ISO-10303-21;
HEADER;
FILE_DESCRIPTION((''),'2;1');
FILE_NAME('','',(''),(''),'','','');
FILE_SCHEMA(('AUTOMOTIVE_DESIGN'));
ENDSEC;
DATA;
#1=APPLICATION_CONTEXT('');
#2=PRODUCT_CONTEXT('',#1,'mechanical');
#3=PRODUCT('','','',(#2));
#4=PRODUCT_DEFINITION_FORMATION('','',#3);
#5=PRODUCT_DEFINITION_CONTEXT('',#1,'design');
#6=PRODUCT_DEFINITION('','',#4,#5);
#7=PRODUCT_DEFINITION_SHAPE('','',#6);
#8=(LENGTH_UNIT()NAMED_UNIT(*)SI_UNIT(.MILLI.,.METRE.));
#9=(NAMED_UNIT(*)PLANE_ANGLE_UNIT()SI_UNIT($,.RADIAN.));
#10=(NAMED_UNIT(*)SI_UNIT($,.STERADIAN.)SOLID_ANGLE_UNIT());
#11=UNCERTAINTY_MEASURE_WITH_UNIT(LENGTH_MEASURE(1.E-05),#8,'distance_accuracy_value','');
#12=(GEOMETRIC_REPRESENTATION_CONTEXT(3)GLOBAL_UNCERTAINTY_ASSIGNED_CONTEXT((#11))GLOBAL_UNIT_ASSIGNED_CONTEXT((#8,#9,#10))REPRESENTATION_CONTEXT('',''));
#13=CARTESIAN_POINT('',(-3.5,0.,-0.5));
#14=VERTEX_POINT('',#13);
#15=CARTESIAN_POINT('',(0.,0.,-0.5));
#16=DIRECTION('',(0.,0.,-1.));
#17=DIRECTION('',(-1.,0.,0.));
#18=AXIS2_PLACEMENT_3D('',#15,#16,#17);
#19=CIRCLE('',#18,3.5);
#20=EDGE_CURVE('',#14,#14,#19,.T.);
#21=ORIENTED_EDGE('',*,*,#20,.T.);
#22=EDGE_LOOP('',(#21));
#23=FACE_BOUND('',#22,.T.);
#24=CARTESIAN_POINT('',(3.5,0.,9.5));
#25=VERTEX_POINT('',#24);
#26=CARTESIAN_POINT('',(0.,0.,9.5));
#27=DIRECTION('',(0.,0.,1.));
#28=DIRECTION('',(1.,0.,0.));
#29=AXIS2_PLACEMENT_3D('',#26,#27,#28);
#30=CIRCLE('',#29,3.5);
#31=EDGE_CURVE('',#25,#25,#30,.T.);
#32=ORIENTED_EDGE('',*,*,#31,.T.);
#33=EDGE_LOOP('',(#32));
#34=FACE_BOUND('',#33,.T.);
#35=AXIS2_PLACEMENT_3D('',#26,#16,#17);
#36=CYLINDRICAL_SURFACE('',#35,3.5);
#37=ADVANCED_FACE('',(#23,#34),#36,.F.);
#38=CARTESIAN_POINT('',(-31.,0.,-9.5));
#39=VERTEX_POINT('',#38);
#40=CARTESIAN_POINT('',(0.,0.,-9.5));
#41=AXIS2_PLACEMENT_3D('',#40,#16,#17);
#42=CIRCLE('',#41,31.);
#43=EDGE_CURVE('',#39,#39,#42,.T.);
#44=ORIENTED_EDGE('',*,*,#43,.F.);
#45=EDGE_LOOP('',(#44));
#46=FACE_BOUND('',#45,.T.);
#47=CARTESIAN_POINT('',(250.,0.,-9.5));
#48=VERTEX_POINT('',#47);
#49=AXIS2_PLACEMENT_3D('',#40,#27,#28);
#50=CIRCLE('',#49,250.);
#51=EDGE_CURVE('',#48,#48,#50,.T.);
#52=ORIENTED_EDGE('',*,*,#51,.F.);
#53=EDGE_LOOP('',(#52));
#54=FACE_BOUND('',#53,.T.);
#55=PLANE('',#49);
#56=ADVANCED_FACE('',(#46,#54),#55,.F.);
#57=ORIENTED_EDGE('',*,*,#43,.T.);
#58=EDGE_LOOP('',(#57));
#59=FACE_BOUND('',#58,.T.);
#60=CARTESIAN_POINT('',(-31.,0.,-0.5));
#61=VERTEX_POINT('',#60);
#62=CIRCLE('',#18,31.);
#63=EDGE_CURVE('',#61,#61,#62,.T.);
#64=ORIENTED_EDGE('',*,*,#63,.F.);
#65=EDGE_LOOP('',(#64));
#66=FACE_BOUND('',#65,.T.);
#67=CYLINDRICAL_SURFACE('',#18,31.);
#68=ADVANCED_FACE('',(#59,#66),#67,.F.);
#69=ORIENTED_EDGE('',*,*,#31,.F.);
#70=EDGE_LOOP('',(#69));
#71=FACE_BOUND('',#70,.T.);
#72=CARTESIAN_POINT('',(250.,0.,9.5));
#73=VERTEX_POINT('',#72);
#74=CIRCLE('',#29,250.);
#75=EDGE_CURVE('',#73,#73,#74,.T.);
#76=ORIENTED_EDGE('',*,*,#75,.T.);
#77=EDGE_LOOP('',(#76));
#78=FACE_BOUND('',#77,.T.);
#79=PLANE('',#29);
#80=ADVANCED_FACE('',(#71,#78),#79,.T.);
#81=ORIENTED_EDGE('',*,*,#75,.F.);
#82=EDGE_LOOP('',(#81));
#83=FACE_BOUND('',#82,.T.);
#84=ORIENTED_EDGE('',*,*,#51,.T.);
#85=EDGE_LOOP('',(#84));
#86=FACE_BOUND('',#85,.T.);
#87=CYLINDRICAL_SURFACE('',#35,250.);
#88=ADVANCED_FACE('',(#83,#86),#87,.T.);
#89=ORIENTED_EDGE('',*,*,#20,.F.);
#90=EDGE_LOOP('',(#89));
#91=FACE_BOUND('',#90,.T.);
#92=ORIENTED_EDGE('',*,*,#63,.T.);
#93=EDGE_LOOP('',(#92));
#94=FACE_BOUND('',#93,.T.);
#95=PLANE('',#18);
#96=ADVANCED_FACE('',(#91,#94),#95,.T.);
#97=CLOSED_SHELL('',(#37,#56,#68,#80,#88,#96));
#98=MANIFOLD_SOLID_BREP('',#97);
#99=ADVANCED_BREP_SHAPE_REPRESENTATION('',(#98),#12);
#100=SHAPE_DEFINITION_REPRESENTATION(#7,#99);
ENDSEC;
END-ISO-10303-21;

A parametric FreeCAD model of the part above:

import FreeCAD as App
import Part
import Sketcher

doc = App.newDocument("Part")
body = doc.addObject("PartDesign::Body", "Body")

# Sketch on XY plane
sketch1 = body.newObject("Sketcher::SketchObject", "Sketch")
sketch1.AttachmentSupport = (doc.getObject("XY_Plane"), [""])
sketch1.MapMode = "FlatFace"
sketch1.addGeometry([
    Part.Circle(App.Vector(0, 0, 0), App.Vector(0, 0, 1), 250),
    Part.Circle(App.Vector(0, 0, 0), App.Vector(0, 0, 1), 3.5),
], False)
sketch1.addConstraint([
    Sketcher.Constraint("Coincident", 0, 3, -1, 1),
    Sketcher.Constraint("Coincident", 1, 3, -1, 1),
    Sketcher.Constraint("Diameter", 0, 500.0),
    Sketcher.Constraint("Diameter", 1, 7.0),
])
pad1 = body.newObject("PartDesign::Pad", "Pad")
pad1.Profile = sketch1
pad1.Length = 19
pad1.Midplane = True

# Sketch on XY plane
sketch2 = body.newObject("Sketcher::SketchObject", "Sketch001")
sketch2.AttachmentSupport = (doc.getObject("XY_Plane"), [""])
sketch2.MapMode = "FlatFace"
sketch2.AttachmentOffset = App.Placement(App.Vector(0, 0, -9.5), App.Rotation())
sketch2.addGeometry(Part.Circle(App.Vector(0, 0, 0), App.Vector(0, 0, 1), 31), False)
sketch2.addConstraint([
    Sketcher.Constraint("Coincident", 0, 3, -1, 1),
    Sketcher.Constraint("Diameter", 0, 62.0),
])
pocket1 = body.newObject("PartDesign::Pocket", "Pocket")
pocket1.Profile = sketch2
pocket1.Length = 9
pocket1.Reversed = True

doc.recompute()
